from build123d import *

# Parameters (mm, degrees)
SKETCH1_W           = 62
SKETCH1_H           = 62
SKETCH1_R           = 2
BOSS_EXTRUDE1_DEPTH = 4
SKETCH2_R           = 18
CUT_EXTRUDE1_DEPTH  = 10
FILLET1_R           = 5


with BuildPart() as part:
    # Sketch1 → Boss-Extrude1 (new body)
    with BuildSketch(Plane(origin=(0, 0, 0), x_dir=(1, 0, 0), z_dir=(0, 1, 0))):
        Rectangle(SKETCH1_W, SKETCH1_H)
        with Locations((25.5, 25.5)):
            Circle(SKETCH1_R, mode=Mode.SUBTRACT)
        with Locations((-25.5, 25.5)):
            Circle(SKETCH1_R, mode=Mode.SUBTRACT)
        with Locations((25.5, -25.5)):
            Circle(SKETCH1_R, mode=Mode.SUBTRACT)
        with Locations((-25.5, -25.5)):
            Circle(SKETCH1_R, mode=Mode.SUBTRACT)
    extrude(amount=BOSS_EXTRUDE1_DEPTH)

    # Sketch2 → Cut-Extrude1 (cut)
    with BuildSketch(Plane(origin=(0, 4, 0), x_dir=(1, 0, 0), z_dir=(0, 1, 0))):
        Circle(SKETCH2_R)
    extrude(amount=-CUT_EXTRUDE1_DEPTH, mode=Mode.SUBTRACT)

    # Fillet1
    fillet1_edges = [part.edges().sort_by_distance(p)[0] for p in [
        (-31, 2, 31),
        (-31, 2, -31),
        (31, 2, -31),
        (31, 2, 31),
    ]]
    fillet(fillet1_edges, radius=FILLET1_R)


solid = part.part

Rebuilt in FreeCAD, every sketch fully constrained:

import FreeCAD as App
import Part
import Sketcher

V = App.Vector


def edges_at(feature, points):
    """Names of the edges that pass closest to the given points."""
    edges = feature.Shape.Edges
    near = lambda p: min(range(len(edges)), key=lambda i: edges[i].distToShape(Part.Vertex(*p))[0])
    return sorted({f"Edge{near(p) + 1}" for p in points})


def add_polygon(sketch, points):
    """Adds a closed chain of lines whose ends are joined by coincident constraints."""
    first, n = sketch.GeometryCount, len(points)
    for a, b in zip(points, points[1:] + points[:1]):
        sketch.addGeometry(Part.LineSegment(App.Vector(*a, 0), App.Vector(*b, 0)), False)
    for i in range(n):
        sketch.addConstraint(Sketcher.Constraint("Coincident", first + i, 2, first + (i + 1) % n, 1))

doc = App.newDocument("Part")
params = doc.addObject("Spreadsheet::Sheet", "Params")
for row, (alias, value) in enumerate([
    ("sketch1_diameter", "4 mm"),
    ("sketch1_width", "62 mm"),
    ("pad1_length", "4 mm"),
    ("sketch2_diameter", "36 mm"),
    ("pocket1_length", "10 mm"),
    ("fillet_radius", "5 mm"),
], start=1):
    params.set(f"A{row}", alias)
    params.set(f"B{row}", "=" + value)
    params.setAlias(f"B{row}", alias)

body = doc.addObject("PartDesign::Body", "Body")

# Sketch on XZ plane
sketch1 = body.newObject("Sketcher::SketchObject", "Sketch")
sketch1.AttachmentSupport = (doc.getObject("XZ_Plane"), [""])
sketch1.MapMode = "FlatFace"
add_polygon(sketch1, [(-31, -31), (-31, 31), (31, 31), (31, -31)])  # lines 0-3
sketch1.addGeometry(Part.Circle(V(-25.5, 25.5, 0), V(0, 0, 1), 2), False)  # 4
sketch1.addGeometry(Part.Circle(V(25.5, 25.5, 0), V(0, 0, 1), 2), False)  # 5
sketch1.addGeometry(Part.Circle(V(-25.5, -25.5, 0), V(0, 0, 1), 2), False)  # 6
sketch1.addGeometry(Part.Circle(V(25.5, -25.5, 0), V(0, 0, 1), 2), False)  # 7
sketch1.addConstraint([
    Sketcher.Constraint("Vertical", 0),
    Sketcher.Constraint("Horizontal", 1),
    Sketcher.Constraint("Vertical", 2),
    Sketcher.Constraint("Horizontal", 3),
    Sketcher.Constraint("Equal", 4, 5),
    Sketcher.Constraint("Equal", 5, 6),
    Sketcher.Constraint("Equal", 6, 7),
    Sketcher.Constraint("Symmetric", 5, 3, 6, 3, -1, 1),
    Sketcher.Constraint("Symmetric", 4, 3, 7, 3, -1, 1),
    Sketcher.Constraint("Symmetric", 0, 2, 2, 2, -1, 1),
    Sketcher.Constraint("Symmetric", 4, 3, 5, 3, -2),
    Sketcher.Constraint("Equal", 3, 0),
    Sketcher.Constraint("Diameter", 4, 4.0),
    Sketcher.Constraint("DistanceX", 1, 1, 1, 2, 62.0),
    Sketcher.Constraint("DistanceX", 4, 3, 5, 3, 51.0),
    Sketcher.Constraint("DistanceY", 6, 3, 4, 3, 51.0),
])
sketch1.setExpression("Constraints[16]", "Params.sketch1_diameter")
sketch1.setExpression("Constraints[17]", "Params.sketch1_width")
pad1 = body.newObject("PartDesign::Pad", "Pad")
pad1.Profile = sketch1
pad1.setExpression("Length", "Params.pad1_length")
pad1.Reversed = True

# Sketch on XZ plane
sketch2 = body.newObject("Sketcher::SketchObject", "Sketch001")
sketch2.AttachmentSupport = (doc.getObject("XZ_Plane"), [""])
sketch2.MapMode = "FlatFace"
sketch2.AttachmentOffset = App.Placement(V(0, 0, -4), App.Rotation())
sketch2.addGeometry(Part.Circle(V(0, 0, 0), V(0, 0, 1), 18), False)
sketch2.addConstraint([
    Sketcher.Constraint("Coincident", 0, 3, -1, 1),
    Sketcher.Constraint("Diameter", 0, 36.0),
])
sketch2.setExpression("Constraints[1]", "Params.sketch2_diameter")
pocket1 = body.newObject("PartDesign::Pocket", "Pocket")
pocket1.Profile = sketch2
pocket1.setExpression("Length", "Params.pocket1_length")
pocket1.Reversed = True
doc.recompute()

fillet = body.newObject("PartDesign::Fillet", "Fillet")
fillet.Base = (pocket1, edges_at(pocket1, [
    (-31, 2, 31),
    (-31, 2, -31),
    (31, 2, -31),
    (31, 2, 31),
]))
fillet.setExpression("Radius", "Params.fillet_radius")

doc.recompute()
